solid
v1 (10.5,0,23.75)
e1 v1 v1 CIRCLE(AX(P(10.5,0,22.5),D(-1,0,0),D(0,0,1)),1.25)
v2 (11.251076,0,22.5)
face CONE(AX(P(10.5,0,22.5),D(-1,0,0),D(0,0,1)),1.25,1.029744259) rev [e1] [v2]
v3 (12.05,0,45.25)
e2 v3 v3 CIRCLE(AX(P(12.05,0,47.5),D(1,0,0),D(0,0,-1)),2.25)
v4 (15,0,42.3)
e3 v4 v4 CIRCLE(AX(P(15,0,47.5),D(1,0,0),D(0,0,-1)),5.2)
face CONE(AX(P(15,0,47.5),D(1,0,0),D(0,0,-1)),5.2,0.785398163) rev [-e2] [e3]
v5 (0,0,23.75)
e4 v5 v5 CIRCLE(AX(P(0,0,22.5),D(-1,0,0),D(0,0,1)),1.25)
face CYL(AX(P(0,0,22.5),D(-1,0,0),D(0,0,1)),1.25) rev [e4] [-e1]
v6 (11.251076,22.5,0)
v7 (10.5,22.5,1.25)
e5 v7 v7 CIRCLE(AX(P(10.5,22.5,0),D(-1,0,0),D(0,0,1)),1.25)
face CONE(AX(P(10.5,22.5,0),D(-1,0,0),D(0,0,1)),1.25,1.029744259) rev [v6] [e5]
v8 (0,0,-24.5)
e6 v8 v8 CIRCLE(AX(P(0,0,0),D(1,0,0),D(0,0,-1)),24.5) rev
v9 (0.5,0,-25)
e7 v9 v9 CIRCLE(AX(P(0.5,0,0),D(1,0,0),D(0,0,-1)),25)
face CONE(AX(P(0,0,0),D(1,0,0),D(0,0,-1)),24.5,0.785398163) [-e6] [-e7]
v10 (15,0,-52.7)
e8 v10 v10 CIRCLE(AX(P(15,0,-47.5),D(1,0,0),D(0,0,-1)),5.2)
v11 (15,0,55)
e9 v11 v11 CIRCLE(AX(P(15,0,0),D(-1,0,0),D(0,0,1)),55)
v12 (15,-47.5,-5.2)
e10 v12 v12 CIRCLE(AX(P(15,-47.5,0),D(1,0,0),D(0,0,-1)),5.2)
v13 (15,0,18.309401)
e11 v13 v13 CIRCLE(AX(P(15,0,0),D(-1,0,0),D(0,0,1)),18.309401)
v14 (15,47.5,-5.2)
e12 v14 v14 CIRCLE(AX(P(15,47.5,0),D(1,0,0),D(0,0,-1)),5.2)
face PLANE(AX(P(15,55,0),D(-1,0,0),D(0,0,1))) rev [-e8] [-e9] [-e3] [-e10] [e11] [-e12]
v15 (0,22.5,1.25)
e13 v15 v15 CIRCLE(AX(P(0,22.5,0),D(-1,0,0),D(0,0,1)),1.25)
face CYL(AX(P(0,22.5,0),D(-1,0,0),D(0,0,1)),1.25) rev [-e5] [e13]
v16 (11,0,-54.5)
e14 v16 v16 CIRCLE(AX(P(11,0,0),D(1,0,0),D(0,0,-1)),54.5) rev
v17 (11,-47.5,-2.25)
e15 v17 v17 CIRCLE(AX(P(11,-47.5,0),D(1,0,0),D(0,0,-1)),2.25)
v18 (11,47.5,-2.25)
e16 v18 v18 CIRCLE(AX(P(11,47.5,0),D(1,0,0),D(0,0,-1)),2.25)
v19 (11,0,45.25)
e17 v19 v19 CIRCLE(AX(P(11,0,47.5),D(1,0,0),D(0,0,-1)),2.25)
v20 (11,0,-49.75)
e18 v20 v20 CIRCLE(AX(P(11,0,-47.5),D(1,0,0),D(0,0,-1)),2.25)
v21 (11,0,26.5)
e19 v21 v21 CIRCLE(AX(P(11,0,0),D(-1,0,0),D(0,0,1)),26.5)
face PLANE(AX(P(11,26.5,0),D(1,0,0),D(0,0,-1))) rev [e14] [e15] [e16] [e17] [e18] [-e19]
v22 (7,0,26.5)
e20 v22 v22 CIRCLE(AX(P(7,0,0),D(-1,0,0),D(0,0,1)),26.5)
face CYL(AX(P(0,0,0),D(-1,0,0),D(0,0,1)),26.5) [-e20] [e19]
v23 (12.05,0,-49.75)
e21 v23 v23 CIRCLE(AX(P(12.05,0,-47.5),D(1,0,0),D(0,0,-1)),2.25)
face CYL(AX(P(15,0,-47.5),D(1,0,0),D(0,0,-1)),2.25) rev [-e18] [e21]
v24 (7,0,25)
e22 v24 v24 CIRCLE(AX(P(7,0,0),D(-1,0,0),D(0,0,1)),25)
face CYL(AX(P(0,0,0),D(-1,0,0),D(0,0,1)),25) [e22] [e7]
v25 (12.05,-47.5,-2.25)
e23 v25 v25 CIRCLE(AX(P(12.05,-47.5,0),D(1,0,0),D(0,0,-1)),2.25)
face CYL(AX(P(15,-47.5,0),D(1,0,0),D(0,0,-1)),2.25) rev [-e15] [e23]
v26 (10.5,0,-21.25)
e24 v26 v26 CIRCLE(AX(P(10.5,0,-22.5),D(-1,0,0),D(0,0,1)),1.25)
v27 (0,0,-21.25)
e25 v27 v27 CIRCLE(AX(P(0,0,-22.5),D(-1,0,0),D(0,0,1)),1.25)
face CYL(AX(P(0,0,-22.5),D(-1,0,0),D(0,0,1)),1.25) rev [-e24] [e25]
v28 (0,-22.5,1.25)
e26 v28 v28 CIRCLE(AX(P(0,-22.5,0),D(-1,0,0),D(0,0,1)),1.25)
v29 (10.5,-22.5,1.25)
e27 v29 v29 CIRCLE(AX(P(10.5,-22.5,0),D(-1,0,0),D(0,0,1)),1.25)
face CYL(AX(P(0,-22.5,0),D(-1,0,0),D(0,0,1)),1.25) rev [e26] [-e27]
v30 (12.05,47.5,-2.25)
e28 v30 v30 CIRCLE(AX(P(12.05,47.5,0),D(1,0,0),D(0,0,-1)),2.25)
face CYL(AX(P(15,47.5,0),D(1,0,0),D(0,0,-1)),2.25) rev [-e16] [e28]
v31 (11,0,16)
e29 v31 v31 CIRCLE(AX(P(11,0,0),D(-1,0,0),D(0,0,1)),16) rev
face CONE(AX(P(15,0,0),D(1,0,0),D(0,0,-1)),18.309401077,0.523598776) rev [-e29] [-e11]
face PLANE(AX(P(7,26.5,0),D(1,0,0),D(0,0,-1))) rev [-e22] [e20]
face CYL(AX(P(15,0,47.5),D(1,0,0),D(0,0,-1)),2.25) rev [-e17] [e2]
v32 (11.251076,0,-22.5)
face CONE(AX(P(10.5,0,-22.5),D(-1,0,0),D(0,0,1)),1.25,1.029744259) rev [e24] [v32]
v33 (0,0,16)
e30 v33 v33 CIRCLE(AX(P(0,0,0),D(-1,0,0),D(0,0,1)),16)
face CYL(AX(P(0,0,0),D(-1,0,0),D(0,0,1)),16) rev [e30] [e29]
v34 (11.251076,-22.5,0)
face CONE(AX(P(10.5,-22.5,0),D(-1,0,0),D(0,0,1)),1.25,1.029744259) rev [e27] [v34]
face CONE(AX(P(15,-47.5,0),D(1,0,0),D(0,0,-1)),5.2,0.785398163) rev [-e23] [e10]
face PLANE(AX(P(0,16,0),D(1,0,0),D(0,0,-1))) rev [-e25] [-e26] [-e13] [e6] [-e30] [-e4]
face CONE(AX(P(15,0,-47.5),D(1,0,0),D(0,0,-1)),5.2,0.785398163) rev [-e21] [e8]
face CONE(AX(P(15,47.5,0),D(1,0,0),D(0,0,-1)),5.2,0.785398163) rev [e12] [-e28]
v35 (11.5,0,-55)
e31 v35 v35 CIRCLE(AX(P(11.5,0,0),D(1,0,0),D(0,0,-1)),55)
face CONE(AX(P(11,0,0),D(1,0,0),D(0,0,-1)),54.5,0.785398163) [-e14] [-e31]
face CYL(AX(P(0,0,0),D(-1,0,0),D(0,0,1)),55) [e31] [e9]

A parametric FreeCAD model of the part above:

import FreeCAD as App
import Part
import Sketcher
from FreeCAD import Vector
Q = App.Units.Quantity


def edges_at(feature, points):
    """Names of the edges that pass closest to the given points."""
    edges = feature.Shape.Edges
    near = lambda p: min(range(len(edges)), key=lambda i: edges[i].distToShape(Part.Vertex(*p))[0])
    return sorted({f"Edge{near(p) + 1}" for p in points})

doc = App.newDocument("Part")
body = doc.addObject("PartDesign::Body", "Body")

# Sketch on XY plane
sketch1 = body.newObject("Sketcher::SketchObject", "Sketch")
sketch1.AttachmentSupport = (doc.getObject("XY_Plane"), [""])
sketch1.MapMode = "FlatFace"
sketch1.addGeometry([
    Part.LineSegment(Vector(0, 25, 0), Vector(0, 16, 0)),  # 0
    Part.LineSegment(Vector(0, 16, 0), Vector(15, 16, 0)),  # 1
    Part.LineSegment(Vector(15, 16, 0), Vector(15, 55, 0)),  # 2
    Part.LineSegment(Vector(15, 55, 0), Vector(11, 55, 0)),  # 3
    Part.LineSegment(Vector(11, 55, 0), Vector(11, 26.5, 0)),  # 4
    Part.LineSegment(Vector(11, 26.5, 0), Vector(7, 26.5, 0)),  # 5
    Part.LineSegment(Vector(7, 26.5, 0), Vector(7, 25, 0)),  # 6
    Part.LineSegment(Vector(7, 25, 0), Vector(0, 25, 0)),  # 7
], False)
sketch1.addConstraint([
    Sketcher.Constraint("Coincident", 0, 2, 1, 1),
    Sketcher.Constraint("Coincident", 1, 2, 2, 1),
    Sketcher.Constraint("Coincident", 2, 2, 3, 1),
    Sketcher.Constraint("Coincident", 3, 2, 4, 1),
    Sketcher.Constraint("Coincident", 4, 2, 5, 1),
    Sketcher.Constraint("Coincident", 5, 2, 6, 1),
    Sketcher.Constraint("Coincident", 6, 2, 7, 1),
    Sketcher.Constraint("Coincident", 7, 2, 0, 1),
    Sketcher.Constraint("Vertical", 0),
    Sketcher.Constraint("Horizontal", 1),
    Sketcher.Constraint("Vertical", 2),
    Sketcher.Constraint("Horizontal", 3),
    Sketcher.Constraint("Vertical", 4),
    Sketcher.Constraint("Horizontal", 5),
    Sketcher.Constraint("Vertical", 6),
    Sketcher.Constraint("Horizontal", 7),
    Sketcher.Constraint("PointOnObject", 0, 2, -2),
    Sketcher.Constraint("Equal", 3, 5),
    Sketcher.Constraint("DistanceX", 1, 1, 1, 2, Q("15 mm")),
    Sketcher.Constraint("DistanceX", 3, 2, 3, 1, Q("4 mm")),
    Sketcher.Constraint("DistanceY", 0, 2, 0, 1, Q("9 mm")),
    Sketcher.Constraint("DistanceY", 2, 1, 2, 2, Q("39 mm")),
    Sketcher.Constraint("DistanceY", 4, 2, 4, 1, Q("28.5 mm")),
    Sketcher.Constraint("DistanceY", -1, 1, 0, 2, Q("16 mm")),
])
revolution = body.newObject("PartDesign::Revolution", "Revolution")
revolution.Profile = sketch1
revolution.ReferenceAxis = (sketch1, ["H_Axis"])
revolution.Angle = 360

# Sketch on YZ plane
sketch2 = body.newObject("Sketcher::SketchObject", "Sketch001")
sketch2.AttachmentSupport = (doc.getObject("YZ_Plane"), [""])
sketch2.MapMode = "FlatFace"
sketch2.AttachmentOffset = App.Placement(Vector(0, 0, 15), App.Rotation())
sketch2.addGeometry([
    Part.Circle(Vector(47.5, 0, 0), Vector(0, 0, 1), 2.25),
    Part.Circle(Vector(0, -47.5, 0), Vector(0, 0, 1), 2.25),
    Part.Circle(Vector(-47.5, 0, 0), Vector(0, 0, 1), 2.25),
    Part.Circle(Vector(0, 47.5, 0), Vector(0, 0, 1), 2.25),
], False)
sketch2.addConstraint([
    Sketcher.Constraint("Equal", 0, 1),
    Sketcher.Constraint("Equal", 1, 2),
    Sketcher.Constraint("Equal", 2, 3),
    Sketcher.Constraint("Symmetric", 0, 3, 2, 3, -1, 1),
    Sketcher.Constraint("Symmetric", 1, 3, 3, 3, -1, 1),
    Sketcher.Constraint("PointOnObject", 0, 3, -1),
    Sketcher.Constraint("PointOnObject", 1, 3, -2),
    Sketcher.Constraint("Diameter", 0, Q("4.5 mm")),
    Sketcher.Constraint("DistanceX", 2, 3, 0, 3, Q("95 mm")),
    Sketcher.Constraint("DistanceY", 1, 3, 3, 3, Q("95 mm")),
])
doc.recompute()
hole = body.newObject("PartDesign::Hole", "Hole")
hole.Profile = sketch2
hole.ThreadType = "None"
hole.Diameter = 4.5
hole.DepthType = "ThroughAll"
hole.HoleCutType = "Countersink"
hole.HoleCutDiameter = 10.4
hole.HoleCutCountersinkAngle = 90
doc.recompute()

chamfer = body.newObject("PartDesign::Chamfer", "Chamfer")
chamfer.Base = (hole, edges_at(hole, [(11, 0, -55), (0, 0, -25)]))
chamfer.Size = 0.5

# Sketch on YZ plane
sketch3 = body.newObject("Sketcher::SketchObject", "Sketch002")
sketch3.AttachmentSupport = (doc.getObject("YZ_Plane"), [""])
sketch3.MapMode = "FlatFace"
sketch3.addGeometry([
    Part.Circle(Vector(22.5, 0, 0), Vector(0, 0, 1), 1.25),
    Part.Circle(Vector(0, -22.5, 0), Vector(0, 0, 1), 1.25),
    Part.Circle(Vector(-22.5, 0, 0), Vector(0, 0, 1), 1.25),
    Part.Circle(Vector(0, 22.5, 0), Vector(0, 0, 1), 1.25),
], False)
sketch3.addConstraint([
    Sketcher.Constraint("Equal", 0, 1),
    Sketcher.Constraint("Equal", 1, 2),
    Sketcher.Constraint("Equal", 2, 3),
    Sketcher.Constraint("Symmetric", 0, 3, 2, 3, -1, 1),
    Sketcher.Constraint("Symmetric", 1, 3, 3, 3, -1, 1),
    Sketcher.Constraint("PointOnObject", 0, 3, -1),
    Sketcher.Constraint("PointOnObject", 1, 3, -2),
    Sketcher.Constraint("Diameter", 0, Q("2.5 mm")),
    Sketcher.Constraint("DistanceX", 2, 3, 0, 3, Q("45 mm")),
    Sketcher.Constraint("DistanceY", 1, 3, 3, 3, Q("45 mm")),
])
doc.recompute()
hole2 = body.newObject("PartDesign::Hole", "Hole001")
hole2.Profile = sketch3
hole2.ThreadType = "None"
hole2.Diameter = 2.5
hole2.DepthType = "Dimension"
hole2.Depth = 10.5
hole2.DrillPoint = "Angled"
hole2.DrillPointAngle = 118
hole2.Reversed = True
doc.recompute()

chamfer2 = body.newObject("PartDesign::Chamfer", "Chamfer001")
chamfer2.Base = (hole2, edges_at(hole2, [(15, 0, -16)]))
chamfer2.ChamferType = "Two distances"
chamfer2.Size = 4
chamfer2.Size2 = 2.309401

doc.recompute()
